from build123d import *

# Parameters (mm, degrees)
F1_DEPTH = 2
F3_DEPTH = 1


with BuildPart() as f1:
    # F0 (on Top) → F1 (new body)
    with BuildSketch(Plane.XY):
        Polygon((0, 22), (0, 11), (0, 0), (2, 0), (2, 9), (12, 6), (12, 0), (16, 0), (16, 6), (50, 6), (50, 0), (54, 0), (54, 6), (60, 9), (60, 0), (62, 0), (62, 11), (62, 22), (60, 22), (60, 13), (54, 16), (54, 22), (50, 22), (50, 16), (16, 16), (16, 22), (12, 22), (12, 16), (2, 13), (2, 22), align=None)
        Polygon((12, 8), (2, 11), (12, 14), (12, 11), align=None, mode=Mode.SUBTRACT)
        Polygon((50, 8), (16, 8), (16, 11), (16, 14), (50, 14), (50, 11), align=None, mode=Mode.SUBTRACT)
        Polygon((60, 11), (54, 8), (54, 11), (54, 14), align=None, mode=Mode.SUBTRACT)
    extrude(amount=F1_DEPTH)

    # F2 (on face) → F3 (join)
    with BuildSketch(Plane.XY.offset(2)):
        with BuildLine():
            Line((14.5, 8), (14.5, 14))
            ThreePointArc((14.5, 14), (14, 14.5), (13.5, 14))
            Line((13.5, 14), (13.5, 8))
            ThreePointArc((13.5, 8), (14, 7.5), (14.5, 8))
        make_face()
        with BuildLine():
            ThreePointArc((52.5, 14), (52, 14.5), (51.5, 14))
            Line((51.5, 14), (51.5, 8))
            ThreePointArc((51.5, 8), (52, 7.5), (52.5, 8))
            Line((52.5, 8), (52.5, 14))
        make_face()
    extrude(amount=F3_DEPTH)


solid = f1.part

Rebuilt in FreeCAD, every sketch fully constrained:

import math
import FreeCAD as App
import Part
import Sketcher
from FreeCAD import Vector
Q = App.Units.Quantity


def add_polygon(sketch, points):
    """Adds a closed chain of lines whose ends are joined by coincident constraints."""
    first, n = sketch.GeometryCount, len(points)
    for a, b in zip(points, points[1:] + points[:1]):
        sketch.addGeometry(Part.LineSegment(App.Vector(*a, 0), App.Vector(*b, 0)), False)
    for i in range(n):
        sketch.addConstraint(Sketcher.Constraint("Coincident", first + i, 2, first + (i + 1) % n, 1))

doc = App.newDocument("Part")
params = doc.addObject("Spreadsheet::Sheet", "Params")
for row, (alias, value) in enumerate([
    ("sketch1_width", "2 mm"),
    ("sketch1_width2", "4 mm"),
    ("sketch1_width3", "34 mm"),
    ("sketch1_height", "22 mm"),
    ("sketch1_height2", "9 mm"),
    ("pad1_length", "2 mm"),
    ("sketch2_radius", "0.5 mm"),
    ("sketch2_height", "6 mm"),
    ("pad2_length", "1 mm"),
], start=1):
    params.set(f"A{row}", alias)
    params.set(f"B{row}", "=" + value)
    params.setAlias(f"B{row}", alias)

body = doc.addObject("PartDesign::Body", "Body")

# Sketch on XY plane
sketch1 = body.newObject("Sketcher::SketchObject", "Sketch")
sketch1.AttachmentSupport = (doc.getObject("XY_Plane"), [""])
sketch1.MapMode = "FlatFace"
add_polygon(sketch1, [(0, 22), (0, 0), (2, 0), (2, 9), (12, 6), (12, 0), (16, 0), (16, 6), (50, 6), (50, 0), (54, 0), (54, 6), (60, 9), (60, 0), (62, 0), (62, 22), (60, 22), (60, 13), (54, 16), (54, 22), (50, 22), (50, 16), (16, 16), (16, 22), (12, 22), (12, 16), (2, 13), (2, 22)])  # lines 0-27
add_polygon(sketch1, [(50, 14), (50, 8), (16, 8), (16, 14)])  # lines 28-31
add_polygon(sketch1, [(54, 14), (60, 11), (54, 8)])  # lines 32-34
add_polygon(sketch1, [(12, 14), (12, 8), (2, 11)])  # lines 35-37
sketch1.addConstraint([
    Sketcher.Constraint("Vertical", 0),
    Sketcher.Constraint("Horizontal", 1),
    Sketcher.Constraint("Vertical", 2),
    Sketcher.Constraint("Vertical", 4),
    Sketcher.Constraint("Horizontal", 5),
    Sketcher.Constraint("Vertical", 6),
    Sketcher.Constraint("Horizontal", 7),
    Sketcher.Constraint("Vertical", 8),
    Sketcher.Constraint("Horizontal", 9),
    Sketcher.Constraint("Vertical", 10),
    Sketcher.Constraint("Vertical", 12),
    Sketcher.Constraint("Horizontal", 13),
    Sketcher.Constraint("Vertical", 14),
    Sketcher.Constraint("Horizontal", 15),
    Sketcher.Constraint("Vertical", 16),
    Sketcher.Constraint("Vertical", 18),
    Sketcher.Constraint("Horizontal", 19),
    Sketcher.Constraint("Vertical", 20),
    Sketcher.Constraint("Horizontal", 21),
    Sketcher.Constraint("Vertical", 22),
    Sketcher.Constraint("Horizontal", 23),
    Sketcher.Constraint("Vertical", 24),
    Sketcher.Constraint("Vertical", 26),
    Sketcher.Constraint("Horizontal", 27),
    Sketcher.Constraint("Vertical", 28),
    Sketcher.Constraint("Horizontal", 29),
    Sketcher.Constraint("Vertical", 30),
    Sketcher.Constraint("Horizontal", 31),
    Sketcher.Constraint("Vertical", 34),
    Sketcher.Constraint("Vertical", 35),
    Sketcher.Constraint("Coincident", 0, 2, -1, 1),
    Sketcher.Constraint("PointOnObject", 4, 2, -1),
    Sketcher.Constraint("PointOnObject", 8, 2, -1),
    Sketcher.Constraint("PointOnObject", 12, 2, -1),
    Sketcher.Constraint("Parallel", 17, 32),
    Sketcher.Constraint("Parallel", 11, 33),
    Sketcher.Constraint("Parallel", 3, 36),
    Sketcher.Constraint("Parallel", 25, 37),
    Sketcher.Constraint("Horizontal", 3, 2, 6, 2),
    Sketcher.Constraint("Horizontal", 7, 2, 10, 2),
    Sketcher.Constraint("Horizontal", 2, 2, 11, 2),
    Sketcher.Constraint("Horizontal", 15, 2, 18, 2),
    Sketcher.Constraint("Horizontal", 17, 2, 20, 2),
    Sketcher.Constraint("Horizontal", 19, 2, 22, 2),
    Sketcher.Constraint("Horizontal", 21, 2, 24, 2),
    Sketcher.Constraint("Horizontal", 16, 2, 25, 2),
    Sketcher.Constraint("Horizontal", 23, 2, 26, 2),
    Sketcher.Constraint("Horizontal", 29, 2, 33, 2),
    Sketcher.Constraint("Horizontal", 31, 2, 34, 2),
    Sketcher.Constraint("Horizontal", 33, 2, 35, 2),
    Sketcher.Constraint("Horizontal", 32, 2, 36, 2),
    Sketcher.Constraint("Horizontal", 34, 2, 37, 2),
    Sketcher.Constraint("Vertical", 12, 2, 15, 2),
    Sketcher.Constraint("Vertical", 10, 2, 17, 2),
    Sketcher.Constraint("Vertical", 8, 2, 19, 2),
    Sketcher.Constraint("Vertical", 6, 2, 21, 2),
    Sketcher.Constraint("Vertical", 4, 2, 23, 2),
    Sketcher.Constraint("Vertical", 20, 2, 28, 2),
    Sketcher.Constraint("Vertical", 22, 2, 29, 2),
    Sketcher.Constraint("Vertical", 16, 2, 32, 2),
    Sketcher.Constraint("Vertical", 18, 2, 33, 2),
    Sketcher.Constraint("Vertical", 24, 2, 35, 2),
    Sketcher.Constraint("Equal", 5, 9),
    Sketcher.Constraint("Equal", 1, 13),
    Sketcher.Constraint("Equal", 12, 16),
    Sketcher.Constraint("Equal", 10, 18),
    Sketcher.Constraint("Equal", 24, 28),
    Sketcher.Constraint("DistanceX", 1, 1, 1, 2, Q("2 mm")),
    Sketcher.Constraint("DistanceX", 5, 1, 5, 2, Q("4 mm")),
    Sketcher.Constraint("DistanceX", 7, 1, 7, 2, Q("34 mm")),
    Sketcher.Constraint("DistanceY", 0, 2, 0, 1, Q("22 mm")),
    Sketcher.Constraint("DistanceY", 2, 1, 2, 2, Q("9 mm")),
    Sketcher.Constraint("DistanceX", -1, 1, 3, 2, Q("12 mm")),
    Sketcher.Constraint("DistanceX", -1, 1, 11, 2, Q("60 mm")),
    Sketcher.Constraint("DistanceY", -1, 1, 28, 2, Q("8 mm")),
])
sketch1.setExpression("Constraints[105]", "Params.sketch1_width")
sketch1.setExpression("Constraints[106]", "Params.sketch1_width2")
sketch1.setExpression("Constraints[107]", "Params.sketch1_width3")
sketch1.setExpression("Constraints[108]", "Params.sketch1_height")
sketch1.setExpression("Constraints[109]", "Params.sketch1_height2")
pad1 = body.newObject("PartDesign::Pad", "Pad")
pad1.Profile = sketch1
pad1.setExpression("Length", "Params.pad1_length")

# Sketch on XY plane
sketch2 = body.newObject("Sketcher::SketchObject", "Sketch001")
sketch2.AttachmentSupport = (doc.getObject("XY_Plane"), [""])
sketch2.MapMode = "FlatFace"
sketch2.AttachmentOffset = App.Placement(Vector(0, 0, 2), App.Rotation())
sketch2.addGeometry([
    Part.LineSegment(Vector(14.5, 8, 0), Vector(14.5, 14, 0)),  # 0
    Part.ArcOfCircle(Part.Circle(Vector(14, 14, 0), Vector(0, 0, 1), 0.5), math.radians(0), math.radians(180)),  # 1
    Part.LineSegment(Vector(13.5, 14, 0), Vector(13.5, 8, 0)),  # 2
    Part.ArcOfCircle(Part.Circle(Vector(14, 8, 0), Vector(0, 0, 1), 0.5), math.radians(180), math.radians(360)),  # 3
    Part.ArcOfCircle(Part.Circle(Vector(52, 14, 0), Vector(0, 0, 1), 0.5), math.radians(0), math.radians(180)),  # 4
    Part.LineSegment(Vector(51.5, 14, 0), Vector(51.5, 8, 0)),  # 5
    Part.ArcOfCircle(Part.Circle(Vector(52, 8, 0), Vector(0, 0, 1), 0.5), math.radians(180), math.radians(360)),  # 6
    Part.LineSegment(Vector(52.5, 8, 0), Vector(52.5, 14, 0)),  # 7
], False)
sketch2.addConstraint([
    Sketcher.Constraint("Tangent", 0, 2, 1, 1),
    Sketcher.Constraint("Tangent", 1, 2, 2, 1),
    Sketcher.Constraint("Tangent", 2, 2, 3, 1),
    Sketcher.Constraint("Tangent", 3, 2, 0, 1),
    Sketcher.Constraint("Tangent", 4, 2, 5, 1),
    Sketcher.Constraint("Tangent", 5, 2, 6, 1),
    Sketcher.Constraint("Tangent", 6, 2, 7, 1),
    Sketcher.Constraint("Tangent", 7, 2, 4, 1),
    Sketcher.Constraint("Vertical", 0),
    Sketcher.Constraint("Vertical", 2),
    Sketcher.Constraint("Vertical", 5),
    Sketcher.Constraint("Vertical", 7),
    Sketcher.Constraint("Equal", 3, 4),
    Sketcher.Constraint("Horizontal", 1, 3, 4, 3),
    Sketcher.Constraint("Horizontal", 3, 3, 6, 3),
    Sketcher.Constraint("Radius", 1, Q("0.5 mm")),
    Sketcher.Constraint("DistanceY", 0, 1, 0, 2, Q("6 mm")),
    Sketcher.Constraint("DistanceX", -1, 1, 1, 3, Q("14 mm")),
    Sketcher.Constraint("DistanceY", -1, 1, 1, 3, Q("14 mm")),
    Sketcher.Constraint("DistanceX", -1, 1, 4, 3, Q("52 mm")),
])
sketch2.setExpression("Constraints[15]", "Params.sketch2_radius")
sketch2.setExpression("Constraints[16]", "Params.sketch2_height")
pad2 = body.newObject("PartDesign::Pad", "Pad001")
pad2.Profile = sketch2
pad2.setExpression("Length", "Params.pad2_length")

doc.recompute()
